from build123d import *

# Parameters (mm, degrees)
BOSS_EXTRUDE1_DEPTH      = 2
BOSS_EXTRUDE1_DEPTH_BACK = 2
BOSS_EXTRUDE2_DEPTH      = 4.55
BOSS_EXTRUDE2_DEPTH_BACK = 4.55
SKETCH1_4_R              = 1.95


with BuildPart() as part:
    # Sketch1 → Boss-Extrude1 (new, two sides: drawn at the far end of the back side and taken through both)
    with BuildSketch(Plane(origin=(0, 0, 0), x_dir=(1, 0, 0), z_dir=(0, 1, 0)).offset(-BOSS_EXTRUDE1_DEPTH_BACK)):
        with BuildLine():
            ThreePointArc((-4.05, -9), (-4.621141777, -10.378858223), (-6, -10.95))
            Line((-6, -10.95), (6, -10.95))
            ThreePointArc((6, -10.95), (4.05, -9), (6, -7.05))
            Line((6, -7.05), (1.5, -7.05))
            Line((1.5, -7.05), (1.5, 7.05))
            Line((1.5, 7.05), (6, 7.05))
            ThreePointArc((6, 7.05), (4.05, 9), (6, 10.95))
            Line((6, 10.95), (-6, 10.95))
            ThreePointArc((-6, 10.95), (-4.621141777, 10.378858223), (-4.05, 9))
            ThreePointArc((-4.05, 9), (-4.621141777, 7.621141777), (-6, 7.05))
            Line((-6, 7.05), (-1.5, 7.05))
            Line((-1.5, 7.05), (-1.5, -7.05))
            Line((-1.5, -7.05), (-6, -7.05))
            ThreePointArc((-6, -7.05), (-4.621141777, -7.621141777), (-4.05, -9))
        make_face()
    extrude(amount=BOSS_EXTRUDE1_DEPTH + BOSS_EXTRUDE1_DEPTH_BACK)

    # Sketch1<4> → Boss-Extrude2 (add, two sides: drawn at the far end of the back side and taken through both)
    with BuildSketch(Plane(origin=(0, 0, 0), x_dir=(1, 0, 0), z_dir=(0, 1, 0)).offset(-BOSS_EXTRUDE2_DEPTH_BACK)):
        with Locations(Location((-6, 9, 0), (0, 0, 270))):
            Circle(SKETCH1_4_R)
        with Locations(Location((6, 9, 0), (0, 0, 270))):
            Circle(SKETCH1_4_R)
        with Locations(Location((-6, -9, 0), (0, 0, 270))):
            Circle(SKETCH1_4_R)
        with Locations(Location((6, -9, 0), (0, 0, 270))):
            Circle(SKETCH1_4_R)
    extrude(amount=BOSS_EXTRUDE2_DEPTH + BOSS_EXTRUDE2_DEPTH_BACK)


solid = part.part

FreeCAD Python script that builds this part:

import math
import FreeCAD as App
import Part
import Sketcher
Q = App.Units.Quantity

doc = App.newDocument("Part")
params = doc.addObject("Spreadsheet::Sheet", "Params")
for row, (alias, value) in enumerate([
    ("sketch1_width", "12 mm"),
    ("sketch1_radius", "1.95 mm"),
    ("sketch1_width2", "4.5 mm"),
    ("sketch1_height", "14.1 mm"),
    ("pad1_length", "2 mm"),
    ("pad1_length2", "2 mm"),
    ("sketch2_diameter", "3.9 mm"),
    ("pad2_length", "4.55 mm"),
    ("pad2_length2", "4.55 mm"),
], start=1):
    params.set(f"A{row}", alias)
    params.set(f"B{row}", "=" + value)
    params.setAlias(f"B{row}", alias)

body = doc.addObject("PartDesign::Body", "Body")

# Sketch on XZ plane
sketch1 = body.newObject("Sketcher::SketchObject", "Sketch")
sketch1.AttachmentSupport = (doc.getObject("XZ_Plane"), [""])
sketch1.MapMode = "FlatFace"
sketch1.addGeometry(Part.ArcOfCircle(Part.Circle(App.Vector(-6, 9, 0), App.Vector(0, 0, 1), 1.95), math.radians(0), math.radians(90)), False)
sketch1.addGeometry(Part.LineSegment(App.Vector(-6, 10.95, 0), App.Vector(6, 10.95, 0)), False)
sketch1.addGeometry(Part.ArcOfCircle(Part.Circle(App.Vector(6, 9, 0), App.Vector(0, 0, 1), 1.95), math.radians(90), math.radians(270)), False)
sketch1.addGeometry(Part.LineSegment(App.Vector(6, 7.05, 0), App.Vector(1.5, 7.05, 0)), False)
sketch1.addGeometry(Part.LineSegment(App.Vector(1.5, 7.05, 0), App.Vector(1.5, -7.05, 0)), False)
sketch1.addGeometry(Part.LineSegment(App.Vector(1.5, -7.05, 0), App.Vector(6, -7.05, 0)), False)
sketch1.addGeometry(Part.ArcOfCircle(Part.Circle(App.Vector(6, -9, 0), App.Vector(0, 0, 1), 1.95), math.radians(90), math.radians(270)), False)
sketch1.addGeometry(Part.LineSegment(App.Vector(6, -10.95, 0), App.Vector(-6, -10.95, 0)), False)
sketch1.addGeometry(Part.ArcOfCircle(Part.Circle(App.Vector(-6, -9, 0), App.Vector(0, 0, 1), 1.95), math.radians(-90), math.radians(0)), False)
sketch1.addGeometry(Part.ArcOfCircle(Part.Circle(App.Vector(-6, -9, 0), App.Vector(0, 0, 1), 1.95), math.radians(0), math.radians(90)), False)
sketch1.addGeometry(Part.LineSegment(App.Vector(-6, -7.05, 0), App.Vector(-1.5, -7.05, 0)), False)
sketch1.addGeometry(Part.LineSegment(App.Vector(-1.5, -7.05, 0), App.Vector(-1.5, 7.05, 0)), False)
sketch1.addGeometry(Part.LineSegment(App.Vector(-1.5, 7.05, 0), App.Vector(-6, 7.05, 0)), False)
sketch1.addGeometry(Part.ArcOfCircle(Part.Circle(App.Vector(-6, 9, 0), App.Vector(0, 0, 1), 1.95), math.radians(-90), math.radians(0)), False)
sketch1.addConstraint(Sketcher.Constraint("Tangent", 0, 2, 1, 1))
sketch1.addConstraint(Sketcher.Constraint("Tangent", 1, 2, 2, 1))
sketch1.addConstraint(Sketcher.Constraint("Tangent", 2, 2, 3, 1))
sketch1.addConstraint(Sketcher.Constraint("Coincident", 3, 2, 4, 1))
sketch1.addConstraint(Sketcher.Constraint("Coincident", 4, 2, 5, 1))
sketch1.addConstraint(Sketcher.Constraint("Tangent", 5, 2, 6, 1))
sketch1.addConstraint(Sketcher.Constraint("Tangent", 6, 2, 7, 1))
sketch1.addConstraint(Sketcher.Constraint("Tangent", 7, 2, 8, 1))
sketch1.addConstraint(Sketcher.Constraint("Tangent", 8, 2, 9, 1))
sketch1.addConstraint(Sketcher.Constraint("Tangent", 9, 2, 10, 1))
sketch1.addConstraint(Sketcher.Constraint("Coincident", 10, 2, 11, 1))
sketch1.addConstraint(Sketcher.Constraint("Coincident", 11, 2, 12, 1))
sketch1.addConstraint(Sketcher.Constraint("Tangent", 12, 2, 13, 1))
sketch1.addConstraint(Sketcher.Constraint("Tangent", 13, 2, 0, 1))
sketch1.addConstraint(Sketcher.Constraint("Horizontal", 1))
sketch1.addConstraint(Sketcher.Constraint("Horizontal", 3))
sketch1.addConstraint(Sketcher.Constraint("Vertical", 4))
sketch1.addConstraint(Sketcher.Constraint("Horizontal", 5))
sketch1.addConstraint(Sketcher.Constraint("Horizontal", 7))
sketch1.addConstraint(Sketcher.Constraint("Horizontal", 10))
sketch1.addConstraint(Sketcher.Constraint("Vertical", 11))
sketch1.addConstraint(Sketcher.Constraint("Horizontal", 12))
sketch1.addConstraint(Sketcher.Constraint("Equal", 0, 2))
sketch1.addConstraint(Sketcher.Constraint("Equal", 2, 6))
sketch1.addConstraint(Sketcher.Constraint("Equal", 6, 8))
sketch1.addConstraint(Sketcher.Constraint("Equal", 8, 9))
sketch1.addConstraint(Sketcher.Constraint("Equal", 9, 13))
sketch1.addConstraint(Sketcher.Constraint("Symmetric", 0, 3, 6, 3, -1, 1))
sketch1.addConstraint(Sketcher.Constraint("Symmetric", 8, 2, 13, 2, -1))
sketch1.addConstraint(Sketcher.Constraint("Horizontal", 9, 3, 8, 2))
sketch1.addConstraint(Sketcher.Constraint("Vertical", 2, 3, 6, 3))
sketch1.addConstraint(Sketcher.Constraint("Equal", 5, 10))
sketch1.addConstraint(Sketcher.Constraint("DistanceX", 1, 1, 1, 2, Q("12 mm")))
sketch1.addConstraint(Sketcher.Constraint("Radius", 0, Q("1.95 mm")))
sketch1.addConstraint(Sketcher.Constraint("DistanceX", 3, 2, 3, 1, Q("4.5 mm")))
sketch1.addConstraint(Sketcher.Constraint("DistanceY", 4, 2, 4, 1, Q("14.1 mm")))
sketch1.setExpression("Constraints[32]", "Params.sketch1_width")
sketch1.setExpression("Constraints[33]", "Params.sketch1_radius")
sketch1.setExpression("Constraints[34]", "Params.sketch1_width2")
sketch1.setExpression("Constraints[35]", "Params.sketch1_height")
pad1 = body.newObject("PartDesign::Pad", "Pad")
pad1.Profile = sketch1
pad1.Type = "TwoLengths"
pad1.setExpression("Length", "Params.pad1_length")
pad1.setExpression("Length2", "Params.pad1_length2")
pad1.Reversed = True

# Sketch on XZ plane
sketch2 = body.newObject("Sketcher::SketchObject", "Sketch001")
sketch2.AttachmentSupport = (doc.getObject("XZ_Plane"), [""])
sketch2.MapMode = "FlatFace"
sketch2.addGeometry(Part.Circle(App.Vector(-6, -9, 0), App.Vector(0, 0, 1), 1.95), False)
sketch2.addGeometry(Part.Circle(App.Vector(6, -9, 0), App.Vector(0, 0, 1), 1.95), False)
sketch2.addGeometry(Part.Circle(App.Vector(-6, 9, 0), App.Vector(0, 0, 1), 1.95), False)
sketch2.addGeometry(Part.Circle(App.Vector(6, 9, 0), App.Vector(0, 0, 1), 1.95), False)
sketch2.addConstraint(Sketcher.Constraint("Equal", 0, 1))
sketch2.addConstraint(Sketcher.Constraint("Equal", 1, 2))
sketch2.addConstraint(Sketcher.Constraint("Equal", 2, 3))
sketch2.addConstraint(Sketcher.Constraint("Symmetric", 1, 3, 2, 3, -1, 1))
sketch2.addConstraint(Sketcher.Constraint("Symmetric", 0, 3, 3, 3, -1, 1))
sketch2.addConstraint(Sketcher.Constraint("Symmetric", 0, 3, 1, 3, -2))
sketch2.addConstraint(Sketcher.Constraint("Diameter", 0, Q("3.9 mm")))
sketch2.addConstraint(Sketcher.Constraint("DistanceX", 0, 3, -1, 1, Q("6 mm")))
sketch2.addConstraint(Sketcher.Constraint("DistanceY", 0, 3, -1, 1, Q("9 mm")))
sketch2.setExpression("Constraints[6]", "Params.sketch2_diameter")
pad2 = body.newObject("PartDesign::Pad", "Pad001")
pad2.Profile = sketch2
pad2.Type = "TwoLengths"
pad2.setExpression("Length", "Params.pad2_length")
pad2.setExpression("Length2", "Params.pad2_length2")
pad2.Reversed = True

doc.recompute()
